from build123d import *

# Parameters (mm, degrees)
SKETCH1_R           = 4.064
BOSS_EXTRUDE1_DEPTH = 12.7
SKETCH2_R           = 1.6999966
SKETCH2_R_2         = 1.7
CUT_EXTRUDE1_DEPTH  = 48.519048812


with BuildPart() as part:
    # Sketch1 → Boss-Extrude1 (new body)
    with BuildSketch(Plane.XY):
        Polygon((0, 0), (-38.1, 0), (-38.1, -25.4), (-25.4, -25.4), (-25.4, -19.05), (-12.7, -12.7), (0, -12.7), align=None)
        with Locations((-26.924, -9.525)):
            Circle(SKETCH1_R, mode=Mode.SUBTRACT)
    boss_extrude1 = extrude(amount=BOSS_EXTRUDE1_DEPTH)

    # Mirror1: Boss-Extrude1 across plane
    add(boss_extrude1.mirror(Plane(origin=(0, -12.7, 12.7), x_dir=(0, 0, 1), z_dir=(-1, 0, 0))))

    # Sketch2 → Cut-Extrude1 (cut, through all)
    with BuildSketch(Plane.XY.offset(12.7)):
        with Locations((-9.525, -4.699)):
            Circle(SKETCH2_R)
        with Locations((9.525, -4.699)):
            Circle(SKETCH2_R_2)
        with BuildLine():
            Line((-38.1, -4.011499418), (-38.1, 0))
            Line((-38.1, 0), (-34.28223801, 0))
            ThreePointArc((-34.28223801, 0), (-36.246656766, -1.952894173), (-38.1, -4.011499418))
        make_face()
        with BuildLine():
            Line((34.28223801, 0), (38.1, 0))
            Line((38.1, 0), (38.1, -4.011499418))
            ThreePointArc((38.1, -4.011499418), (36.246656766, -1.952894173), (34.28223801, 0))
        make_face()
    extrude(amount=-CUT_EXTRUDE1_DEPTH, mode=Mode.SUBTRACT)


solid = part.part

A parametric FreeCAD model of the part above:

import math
import FreeCAD as App
import Part
import Sketcher
from FreeCAD import Vector
Q = App.Units.Quantity

doc = App.newDocument("Part")
params = doc.addObject("Spreadsheet::Sheet", "Params")
for row, (alias, value) in enumerate([
    ("sketch1_diameter", "0.32 in"),
    ("sketch1_height", "1 in"),
    ("sketch1_width", "1.5 in"),
    ("sketch1_width2", "0.5 in"),
    ("sketch1_height2", "0.25 in"),
    ("pad1_length", "0.5 in"),
    ("sketch2_radius", "1.97 in"),
], start=1):
    params.set(f"A{row}", alias)
    params.set(f"B{row}", "=" + value)
    params.setAlias(f"B{row}", alias)

body = doc.addObject("PartDesign::Body", "Body")

# Sketch on XY plane
sketch1 = doc.addObject("Sketcher::SketchObject", "Sketch")
body.addObject(sketch1)
sketch1.AttachmentSupport = (doc.XY_Plane, [""])
sketch1.MapMode = "FlatFace"
sketch1.addGeometry([
    Part.LineSegment(Vector(0, 0, 0), Vector(-38.1, 0, 0)),  # 0
    Part.LineSegment(Vector(-38.1, 0, 0), Vector(-38.1, -25.4, 0)),  # 1
    Part.LineSegment(Vector(-38.1, -25.4, 0), Vector(-25.4, -25.4, 0)),  # 2
    Part.LineSegment(Vector(-25.4, -25.4, 0), Vector(-25.4, -19.1, 0)),  # 3
    Part.LineSegment(Vector(-25.4, -19.1, 0), Vector(-12.7, -12.7, 0)),  # 4
    Part.LineSegment(Vector(-12.7, -12.7, 0), Vector(0, -12.7, 0)),  # 5
    Part.LineSegment(Vector(0, -12.7, 0), Vector(0, 0, 0)),  # 6
    Part.Circle(Vector(-26.9, -9.5, 0), Vector(0, 0, 1), 4.1),  # 7
], False)
sketch1.addConstraint([
    Sketcher.Constraint("Coincident", 0, 2, 1, 1),
    Sketcher.Constraint("Coincident", 1, 2, 2, 1),
    Sketcher.Constraint("Coincident", 2, 2, 3, 1),
    Sketcher.Constraint("Coincident", 3, 2, 4, 1),
    Sketcher.Constraint("Coincident", 4, 2, 5, 1),
    Sketcher.Constraint("Coincident", 5, 2, 6, 1),
    Sketcher.Constraint("Coincident", 6, 2, 0, 1),
    Sketcher.Constraint("Horizontal", 0),
    Sketcher.Constraint("Vertical", 1),
    Sketcher.Constraint("Horizontal", 2),
    Sketcher.Constraint("Vertical", 3),
    Sketcher.Constraint("Horizontal", 5),
    Sketcher.Constraint("Vertical", 6),
    Sketcher.Constraint("Coincident", 6, 2, -1, 1),
    Sketcher.Constraint("Equal", 2, 5),
    Sketcher.Constraint("Equal", 5, 6),
    Sketcher.Constraint("Diameter", 7, Q("0.32 in")),
    Sketcher.Constraint("DistanceY", 1, 2, 1, 1, Q("1 in")),
    Sketcher.Constraint("DistanceX", 0, 2, 0, 1, Q("1.5 in")),
    Sketcher.Constraint("DistanceX", 2, 1, 2, 2, Q("0.5 in")),
    Sketcher.Constraint("DistanceY", 3, 1, 3, 2, Q("0.25 in")),
    Sketcher.Constraint("DistanceX", 7, 3, -1, 1, Q("1.06 in")),
    Sketcher.Constraint("DistanceY", 7, 3, -1, 1, Q("0.375 in")),
])
sketch1.setExpression("Constraints[16]", "Params.sketch1_diameter")
sketch1.setExpression("Constraints[17]", "Params.sketch1_height")
sketch1.setExpression("Constraints[18]", "Params.sketch1_width")
sketch1.setExpression("Constraints[19]", "Params.sketch1_width2")
sketch1.setExpression("Constraints[20]", "Params.sketch1_height2")
pad1 = doc.addObject("PartDesign::Pad", "Pad")
body.addObject(pad1)
pad1.Profile = sketch1
pad1.setExpression("Length", "Params.pad1_length")
doc.recompute()

mirrored = doc.addObject("PartDesign::Mirrored", "Mirrored")
body.addObject(mirrored)
mirrored.Originals = [pad1]
mirrored.MirrorPlane = (doc.YZ_Plane, [""])
body.Tip = mirrored

# Sketch on XY plane
sketch2 = doc.addObject("Sketcher::SketchObject", "Sketch001")
body.addObject(sketch2)
sketch2.AttachmentSupport = (doc.XY_Plane, [""])
sketch2.MapMode = "FlatFace"
sketch2.AttachmentOffset = App.Placement(Vector(0, 0, 0.5 * 25.4), App.Rotation())
sketch2.addGeometry([
    Part.Circle(Vector(-9.5, -4.7, 0), Vector(0, 0, 1), 1.7),  # 0
    Part.Circle(Vector(9.5, -4.7, 0), Vector(0, 0, 1), 1.7),  # 1
    Part.LineSegment(Vector(-38.1, 0, 0), Vector(-38.1, -4, 0)),  # 2
    Part.ArcOfCircle(Part.Circle(Vector(0, -36.4, 0), Vector(0, 0, 1), 50), math.radians(133.25), math.radians(139.59)),  # 3
    Part.LineSegment(Vector(-34.3, 0, 0), Vector(-38.1, 0, 0)),  # 4
    Part.LineSegment(Vector(38.1, 0, 0), Vector(34.3, 0, 0)),  # 5
    Part.ArcOfCircle(Part.Circle(Vector(0, -36.4, 0), Vector(0, 0, 1), 50), math.radians(40.41), math.radians(46.75)),  # 6
    Part.LineSegment(Vector(38.1, -4, 0), Vector(38.1, 0, 0)),  # 7
], False)
sketch2.addConstraint([
    Sketcher.Constraint("Coincident", 2, 2, 3, 2),
    Sketcher.Constraint("Coincident", 3, 1, 4, 1),
    Sketcher.Constraint("Coincident", 4, 2, 2, 1),
    Sketcher.Constraint("Coincident", 5, 2, 6, 2),
    Sketcher.Constraint("Coincident", 6, 1, 7, 1),
    Sketcher.Constraint("Coincident", 7, 2, 5, 1),
    Sketcher.Constraint("Vertical", 2),
    Sketcher.Constraint("Horizontal", 4),
    Sketcher.Constraint("Horizontal", 5),
    Sketcher.Constraint("Vertical", 7),
    Sketcher.Constraint("Coincident", 6, 3, 3, 3),
    Sketcher.Constraint("Equal", 3, 6),
    Sketcher.Constraint("Symmetric", 3, 1, 5, 2, -1, 1),
    Sketcher.Constraint("Symmetric", 0, 3, 1, 3, -2),
    Sketcher.Constraint("Symmetric", 2, 2, 6, 1, -2),
    Sketcher.Constraint("Radius", 3, Q("1.97 in")),
    Sketcher.Constraint("DistanceX", 2, 2, -1, 1, Q("1.5 in")),
    Sketcher.Constraint("Diameter", 1, 3.4),
    Sketcher.Constraint("DistanceX", 0, 3, 1, 3, Q("0.75 in")),
    Sketcher.Constraint("DistanceY", 3, 3, 1, 3, Q("1.25 in")),
    Sketcher.Constraint("DistanceY", 0, 3, -1, 1, Q("0.185 in")),
    Sketcher.Constraint("Diameter", 0, 3.399993),
])
sketch2.setExpression("Constraints[15]", "Params.sketch2_radius")
pocket1 = doc.addObject("PartDesign::Pocket", "Pocket")
body.addObject(pocket1)
pocket1.Profile = sketch2
pocket1.Type = "ThroughAll"

doc.recompute()
